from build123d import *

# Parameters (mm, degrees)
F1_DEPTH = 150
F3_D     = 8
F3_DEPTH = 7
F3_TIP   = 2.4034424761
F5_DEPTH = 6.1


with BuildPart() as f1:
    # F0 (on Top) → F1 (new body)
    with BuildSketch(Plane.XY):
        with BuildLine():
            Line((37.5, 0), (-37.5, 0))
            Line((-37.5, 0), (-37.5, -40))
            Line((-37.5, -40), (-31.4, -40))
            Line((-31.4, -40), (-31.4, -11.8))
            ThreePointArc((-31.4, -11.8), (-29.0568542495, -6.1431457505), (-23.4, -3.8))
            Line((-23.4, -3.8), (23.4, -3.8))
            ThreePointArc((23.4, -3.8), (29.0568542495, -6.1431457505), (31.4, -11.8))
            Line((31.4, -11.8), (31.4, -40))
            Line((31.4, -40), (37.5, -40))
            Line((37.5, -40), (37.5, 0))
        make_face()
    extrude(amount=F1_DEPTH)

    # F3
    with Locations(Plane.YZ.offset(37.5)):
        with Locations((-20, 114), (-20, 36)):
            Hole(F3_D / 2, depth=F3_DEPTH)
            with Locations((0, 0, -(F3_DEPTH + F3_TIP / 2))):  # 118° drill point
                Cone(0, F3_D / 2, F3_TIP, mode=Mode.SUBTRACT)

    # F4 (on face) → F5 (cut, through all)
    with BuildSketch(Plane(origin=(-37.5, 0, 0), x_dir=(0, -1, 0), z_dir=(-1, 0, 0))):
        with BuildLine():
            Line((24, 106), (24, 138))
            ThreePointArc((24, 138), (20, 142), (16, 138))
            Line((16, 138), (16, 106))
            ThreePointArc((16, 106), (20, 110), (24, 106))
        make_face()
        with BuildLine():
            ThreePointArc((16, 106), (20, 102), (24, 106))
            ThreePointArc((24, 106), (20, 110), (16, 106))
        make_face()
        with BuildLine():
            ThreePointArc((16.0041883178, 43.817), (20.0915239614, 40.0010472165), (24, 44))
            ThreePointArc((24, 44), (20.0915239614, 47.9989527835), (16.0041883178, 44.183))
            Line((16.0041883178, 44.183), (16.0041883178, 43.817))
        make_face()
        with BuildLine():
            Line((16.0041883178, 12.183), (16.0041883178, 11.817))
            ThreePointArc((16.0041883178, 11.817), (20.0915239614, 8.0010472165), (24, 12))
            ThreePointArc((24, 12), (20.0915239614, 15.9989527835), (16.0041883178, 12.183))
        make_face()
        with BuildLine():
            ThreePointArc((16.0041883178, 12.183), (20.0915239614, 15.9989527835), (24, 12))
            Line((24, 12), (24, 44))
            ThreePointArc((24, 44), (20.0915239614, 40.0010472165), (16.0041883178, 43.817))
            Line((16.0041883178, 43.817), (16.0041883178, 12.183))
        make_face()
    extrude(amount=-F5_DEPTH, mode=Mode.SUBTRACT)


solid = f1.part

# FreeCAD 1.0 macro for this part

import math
import FreeCAD as App
import Part
import Sketcher

V = App.Vector
Q = App.Units.Quantity

doc = App.newDocument("Part")
body = doc.addObject("PartDesign::Body", "Body")

# Sketch on XY plane
sketch1 = doc.addObject("Sketcher::SketchObject", "Sketch")
body.addObject(sketch1)
sketch1.AttachmentSupport = (doc.XY_Plane, [""])
sketch1.MapMode = "FlatFace"
sketch1.addGeometry([
    Part.LineSegment(V(38, 0, 0), V(-38, 0, 0)),  # 0
    Part.LineSegment(V(-38, 0, 0), V(-38, -40, 0)),  # 1
    Part.LineSegment(V(-38, -40, 0), V(-31, -40, 0)),  # 2
    Part.LineSegment(V(-31, -40, 0), V(-31, -12, 0)),  # 3
    Part.ArcOfCircle(Part.Circle(V(-23, -12, 0), V(0, 0, 1), 8), math.radians(90), math.radians(180)),  # 4
    Part.LineSegment(V(-23, -4, 0), V(23, -4, 0)),  # 5
    Part.ArcOfCircle(Part.Circle(V(23, -12, 0), V(0, 0, 1), 8), math.radians(0), math.radians(90)),  # 6
    Part.LineSegment(V(31, -12, 0), V(31, -40, 0)),  # 7
    Part.LineSegment(V(31, -40, 0), V(38, -40, 0)),  # 8
    Part.LineSegment(V(38, -40, 0), V(38, 0, 0)),  # 9
], False)
sketch1.addConstraint([
    Sketcher.Constraint("Coincident", 0, 2, 1, 1),
    Sketcher.Constraint("Coincident", 1, 2, 2, 1),
    Sketcher.Constraint("Coincident", 2, 2, 3, 1),
    Sketcher.Constraint("Tangent", 3, 2, 4, 2),
    Sketcher.Constraint("Tangent", 4, 1, 5, 1),
    Sketcher.Constraint("Tangent", 5, 2, 6, 2),
    Sketcher.Constraint("Tangent", 6, 1, 7, 1),
    Sketcher.Constraint("Coincident", 7, 2, 8, 1),
    Sketcher.Constraint("Coincident", 8, 2, 9, 1),
    Sketcher.Constraint("Coincident", 9, 2, 0, 1),
    Sketcher.Constraint("Horizontal", 0),
    Sketcher.Constraint("Vertical", 1),
    Sketcher.Constraint("Horizontal", 2),
    Sketcher.Constraint("Vertical", 3),
    Sketcher.Constraint("Horizontal", 5),
    Sketcher.Constraint("Vertical", 7),
    Sketcher.Constraint("Horizontal", 8),
    Sketcher.Constraint("Vertical", 9),
    Sketcher.Constraint("Equal", 4, 6),
    Sketcher.Constraint("Symmetric", 0, 2, 9, 2, -1, 1),
    Sketcher.Constraint("Symmetric", 2, 2, 7, 2, -2),
    Sketcher.Constraint("Radius", 4, Q("8 mm")),
    Sketcher.Constraint("DistanceX", 0, 2, 0, 1, Q("75 mm")),
    Sketcher.Constraint("DistanceY", 1, 2, 1, 1, Q("40 mm")),
    Sketcher.Constraint("DistanceX", 2, 1, 2, 2, Q("6.1 mm")),
    Sketcher.Constraint("DistanceY", 3, 1, 3, 2, Q("28.2 mm")),
])
pad1 = doc.addObject("PartDesign::Pad", "Pad")
body.addObject(pad1)
pad1.Profile = sketch1
pad1.Length = 150

# Sketch on YZ plane
sketch2 = doc.addObject("Sketcher::SketchObject", "Sketch001")
body.addObject(sketch2)
sketch2.AttachmentSupport = (doc.YZ_Plane, [""])
sketch2.MapMode = "FlatFace"
sketch2.AttachmentOffset = App.Placement(V(0, 0, 37.5), App.Rotation())
sketch2.addGeometry([
    Part.Circle(V(-20, 114, 0), V(0, 0, 1), 4),
    Part.Circle(V(-20, 36, 0), V(0, 0, 1), 4),
], False)
sketch2.addConstraint([
    Sketcher.Constraint("Equal", 0, 1),
    Sketcher.Constraint("Vertical", 0, 3, 1, 3),
    Sketcher.Constraint("Diameter", 0, Q("8 mm")),
    Sketcher.Constraint("DistanceX", 0, 3, -1, 1, Q("20 mm")),
    Sketcher.Constraint("DistanceY", -1, 1, 0, 3, Q("114 mm")),
    Sketcher.Constraint("DistanceY", -1, 1, 1, 3, Q("36 mm")),
])
doc.recompute()
hole = doc.addObject("PartDesign::Hole", "Hole")
body.addObject(hole)
hole.Profile = sketch2
hole.ThreadType = "None"
hole.Diameter = 8
hole.DepthType = "Dimension"
hole.Depth = 7
hole.DrillPoint = "Angled"
hole.DrillPointAngle = 118

# Sketch on YZ plane
sketch3 = doc.addObject("Sketcher::SketchObject", "Sketch002")
body.addObject(sketch3)
sketch3.AttachmentSupport = (doc.YZ_Plane, [""])
sketch3.MapMode = "FlatFace"
sketch3.AttachmentOffset = App.Placement(V(0, 0, -37.5), App.Rotation())
sketch3.addGeometry([
    Part.LineSegment(V(-24, 106, 0), V(-24, 138, 0)),  # 0
    Part.ArcOfCircle(Part.Circle(V(-20, 138, 0), V(0, 0, 1), 4), math.radians(0), math.radians(180)),  # 1
    Part.LineSegment(V(-16, 138, 0), V(-16, 106, 0)),  # 2
    Part.ArcOfCircle(Part.Circle(V(-20, 106, 0), V(0, 0, 1), 4), math.radians(180), math.radians(360)),  # 3
    Part.ArcOfCircle(Part.Circle(V(-20, 44, 0), V(0, 0, 1), 4), math.radians(3), math.radians(180)),  # 4
    Part.LineSegment(V(-16, 44.2, 0), V(-16, 11.8, 0)),  # 5
    Part.ArcOfCircle(Part.Circle(V(-20, 12, 0), V(0, 0, 1), 4), math.radians(180), math.radians(357)),  # 6
    Part.LineSegment(V(-24, 12, 0), V(-24, 44, 0)),  # 7
], False)
sketch3.addConstraint([
    Sketcher.Constraint("Tangent", 0, 2, 1, 2),
    Sketcher.Constraint("Tangent", 1, 1, 2, 1),
    Sketcher.Constraint("Tangent", 2, 2, 3, 2),
    Sketcher.Constraint("Tangent", 3, 1, 0, 1),
    Sketcher.Constraint("Coincident", 4, 1, 5, 1),
    Sketcher.Constraint("Coincident", 5, 2, 6, 2),
    Sketcher.Constraint("Tangent", 6, 1, 7, 1),
    Sketcher.Constraint("Tangent", 7, 2, 4, 2),
    Sketcher.Constraint("Vertical", 0),
    Sketcher.Constraint("Vertical", 2),
    Sketcher.Constraint("Vertical", 5),
    Sketcher.Constraint("Vertical", 7),
    Sketcher.Constraint("Equal", 3, 4),
    Sketcher.Constraint("Equal", 4, 6),
    Sketcher.Constraint("Vertical", 3, 3, 4, 3),
    Sketcher.Constraint("Equal", 2, 7),
    Sketcher.Constraint("Radius", 1, Q("4 mm")),
    Sketcher.Constraint("DistanceY", 0, 1, 0, 2, Q("32 mm")),
    Sketcher.Constraint("DistanceX", 1, 3, -1, 1, Q("20 mm")),
    Sketcher.Constraint("DistanceY", -1, 1, 1, 3, Q("138 mm")),
    Sketcher.Constraint("DistanceY", -1, 1, 4, 3, Q("44 mm")),
    Sketcher.Constraint("DistanceY", 5, 2, 5, 1, Q("32.366 mm")),
])
pocket1 = doc.addObject("PartDesign::Pocket", "Pocket")
body.addObject(pocket1)
pocket1.Profile = sketch3
pocket1.Length = 6.1
pocket1.Reversed = True

doc.recompute()
